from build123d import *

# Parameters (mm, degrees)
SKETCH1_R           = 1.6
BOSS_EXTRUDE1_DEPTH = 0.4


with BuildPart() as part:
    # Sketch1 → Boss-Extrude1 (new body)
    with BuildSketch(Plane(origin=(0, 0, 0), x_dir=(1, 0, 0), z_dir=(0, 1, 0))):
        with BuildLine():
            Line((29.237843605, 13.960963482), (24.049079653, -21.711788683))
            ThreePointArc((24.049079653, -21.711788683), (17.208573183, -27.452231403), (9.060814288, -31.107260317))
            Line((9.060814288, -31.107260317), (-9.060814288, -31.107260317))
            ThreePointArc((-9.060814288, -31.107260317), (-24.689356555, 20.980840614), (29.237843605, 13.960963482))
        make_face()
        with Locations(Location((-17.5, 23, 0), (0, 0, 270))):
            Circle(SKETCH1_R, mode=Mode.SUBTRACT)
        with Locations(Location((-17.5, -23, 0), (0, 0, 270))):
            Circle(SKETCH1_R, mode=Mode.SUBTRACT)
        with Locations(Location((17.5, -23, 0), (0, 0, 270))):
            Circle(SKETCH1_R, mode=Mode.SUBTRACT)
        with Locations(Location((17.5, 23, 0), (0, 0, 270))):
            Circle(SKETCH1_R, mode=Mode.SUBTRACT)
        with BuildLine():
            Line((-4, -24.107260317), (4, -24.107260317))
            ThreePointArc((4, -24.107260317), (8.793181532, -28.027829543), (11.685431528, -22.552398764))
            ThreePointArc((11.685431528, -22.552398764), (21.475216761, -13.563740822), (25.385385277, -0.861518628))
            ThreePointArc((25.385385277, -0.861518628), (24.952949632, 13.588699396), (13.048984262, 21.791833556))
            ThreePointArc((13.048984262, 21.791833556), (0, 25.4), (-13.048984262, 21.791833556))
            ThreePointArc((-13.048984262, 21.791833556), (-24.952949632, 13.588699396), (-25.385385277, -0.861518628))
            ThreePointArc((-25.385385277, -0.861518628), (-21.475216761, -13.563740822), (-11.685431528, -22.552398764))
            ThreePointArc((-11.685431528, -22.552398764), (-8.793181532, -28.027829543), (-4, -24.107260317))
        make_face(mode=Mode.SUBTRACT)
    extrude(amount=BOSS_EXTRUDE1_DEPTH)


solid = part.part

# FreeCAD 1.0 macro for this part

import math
import FreeCAD as App
import Part
import Sketcher
Q = App.Units.Quantity

doc = App.newDocument("Part")
params = doc.addObject("Spreadsheet::Sheet", "Params")
for row, (alias, value) in enumerate([
    ("sketch1_radius", "4 mm"),
    ("sketch1_radius2", "16 mm"),
    ("sketch1_diameter", "3.2 mm"),
    ("sketch1_radius3", "32.4 mm"),
    ("sketch1_radius4", "25.4 mm"),
    ("pad1_length", "0.4 mm"),
], start=1):
    params.set(f"A{row}", alias)
    params.set(f"B{row}", "=" + value)
    params.setAlias(f"B{row}", alias)

body = doc.addObject("PartDesign::Body", "Body")

# Sketch on XZ plane
sketch1 = body.newObject("Sketcher::SketchObject", "Sketch")
sketch1.AttachmentSupport = (doc.getObject("XZ_Plane"), [""])
sketch1.MapMode = "FlatFace"
sketch1.addGeometry(Part.LineSegment(App.Vector(24, 21.7, 0), App.Vector(29.2, -14, 0)), False)
sketch1.addGeometry(Part.ArcOfCircle(Part.Circle(App.Vector(0, 0, 0), App.Vector(0, 0, 1), 32.4), math.radians(106), math.radians(334)), False)
sketch1.addGeometry(Part.LineSegment(App.Vector(-9.1, 31.1, 0), App.Vector(9.1, 31.1, 0)), False)
sketch1.addGeometry(Part.ArcOfCircle(Part.Circle(App.Vector(0, 0, 0), App.Vector(0, 0, 1), 32.4), math.radians(42), math.radians(74)), False)
sketch1.addGeometry(Part.Circle(App.Vector(17.5, 23, 0), App.Vector(0, 0, 1), 1.6), False)
sketch1.addGeometry(Part.Circle(App.Vector(-17.5, 23, 0), App.Vector(0, 0, 1), 1.6), False)
sketch1.addGeometry(Part.Circle(App.Vector(17.5, -23, 0), App.Vector(0, 0, 1), 1.6), False)
sketch1.addGeometry(Part.ArcOfCircle(Part.Circle(App.Vector(-8, 24.1, 0), App.Vector(0, 0, 1), 4), math.radians(0), math.radians(203)), False)
sketch1.addGeometry(Part.ArcOfCircle(Part.Circle(App.Vector(0, 0, 0), App.Vector(0, 0, 1), 25.4), math.radians(117), math.radians(178)), False)
sketch1.addGeometry(Part.ArcOfCircle(Part.Circle(App.Vector(-10.9, -5.9, 0), App.Vector(0, 0, 1), 16), math.radians(155), math.radians(262)), False)
sketch1.addGeometry(Part.ArcOfCircle(Part.Circle(App.Vector(0, 0, 0), App.Vector(0, 0, 1), 25.4), math.radians(-121), math.radians(-59)), False)
sketch1.addGeometry(Part.ArcOfCircle(Part.Circle(App.Vector(10.9, -5.9, 0), App.Vector(0, 0, 1), 16), math.radians(-82), math.radians(25)), False)
sketch1.addGeometry(Part.ArcOfCircle(Part.Circle(App.Vector(0, 0, 0), App.Vector(0, 0, 1), 25.4), math.radians(2), math.radians(63)), False)
sketch1.addGeometry(Part.ArcOfCircle(Part.Circle(App.Vector(8, 24.1, 0), App.Vector(0, 0, 1), 4), math.radians(-23), math.radians(180)), False)
sketch1.addGeometry(Part.LineSegment(App.Vector(4, 24.1, 0), App.Vector(-4, 24.1, 0)), False)
sketch1.addGeometry(Part.Circle(App.Vector(-17.5, -23, 0), App.Vector(0, 0, 1), 1.6), False)
sketch1.addConstraint(Sketcher.Constraint("Coincident", 0, 2, 1, 2))
sketch1.addConstraint(Sketcher.Constraint("Coincident", 1, 1, 2, 1))
sketch1.addConstraint(Sketcher.Constraint("Coincident", 2, 2, 3, 2))
sketch1.addConstraint(Sketcher.Constraint("Coincident", 3, 1, 0, 1))
sketch1.addConstraint(Sketcher.Constraint("Coincident", 7, 2, 8, 1))
sketch1.addConstraint(Sketcher.Constraint("Coincident", 8, 2, 9, 1))
sketch1.addConstraint(Sketcher.Constraint("Coincident", 9, 2, 10, 1))
sketch1.addConstraint(Sketcher.Constraint("Coincident", 10, 2, 11, 1))
sketch1.addConstraint(Sketcher.Constraint("Coincident", 11, 2, 12, 1))
sketch1.addConstraint(Sketcher.Constraint("Coincident", 12, 2, 13, 1))
sketch1.addConstraint(Sketcher.Constraint("Coincident", 13, 2, 14, 1))
sketch1.addConstraint(Sketcher.Constraint("Coincident", 14, 2, 7, 1))
sketch1.addConstraint(Sketcher.Constraint("Horizontal", 2))
sketch1.addConstraint(Sketcher.Constraint("Horizontal", 14))
sketch1.addConstraint(Sketcher.Constraint("Coincident", 1, 3, -1, 1))
sketch1.addConstraint(Sketcher.Constraint("Coincident", 3, 3, -1, 1))
sketch1.addConstraint(Sketcher.Constraint("Coincident", 8, 3, -1, 1))
sketch1.addConstraint(Sketcher.Constraint("Coincident", 10, 3, -1, 1))
sketch1.addConstraint(Sketcher.Constraint("Coincident", 12, 3, -1, 1))
sketch1.addConstraint(Sketcher.Constraint("Equal", 1, 3))
sketch1.addConstraint(Sketcher.Constraint("Equal", 4, 5))
sketch1.addConstraint(Sketcher.Constraint("Equal", 5, 6))
sketch1.addConstraint(Sketcher.Constraint("Equal", 8, 10))
sketch1.addConstraint(Sketcher.Constraint("Equal", 9, 11))
sketch1.addConstraint(Sketcher.Constraint("Equal", 10, 12))
sketch1.addConstraint(Sketcher.Constraint("Equal", 7, 13))
sketch1.addConstraint(Sketcher.Constraint("Equal", 6, 15))
sketch1.addConstraint(Sketcher.Constraint("Symmetric", 5, 3, 6, 3, -1, 1))
sketch1.addConstraint(Sketcher.Constraint("Symmetric", 4, 3, 15, 3, -1, 1))
sketch1.addConstraint(Sketcher.Constraint("Symmetric", 4, 3, 5, 3, -2))
sketch1.addConstraint(Sketcher.Constraint("Symmetric", 9, 3, 11, 3, -2))
sketch1.addConstraint(Sketcher.Constraint("Symmetric", 7, 3, 13, 3, -2))
sketch1.addConstraint(Sketcher.Constraint("Horizontal", 7, 3, 13, 2))
sketch1.addConstraint(Sketcher.Constraint("Radius", 7, Q("4 mm")))
sketch1.addConstraint(Sketcher.Constraint("Radius", 9, Q("16 mm")))
sketch1.addConstraint(Sketcher.Constraint("Diameter", 4, Q("3.2 mm")))
sketch1.addConstraint(Sketcher.Constraint("Radius", 1, Q("32.4 mm")))
sketch1.addConstraint(Sketcher.Constraint("Radius", 8, Q("25.4 mm")))
sketch1.addConstraint(Sketcher.Constraint("DistanceX", 14, 2, 14, 1, Q("8 mm")))
sketch1.addConstraint(Sketcher.Constraint("DistanceY", -1, 1, 4, 3, Q("23 mm")))
sketch1.addConstraint(Sketcher.Constraint("DistanceX", 5, 3, 4, 3, Q("35 mm")))
sketch1.addConstraint(Sketcher.Constraint("DistanceY", 7, 3, 1, 1, Q("7 mm")))
sketch1.addConstraint(Sketcher.Constraint("DistanceX", 2, 1, 2, 2, Q("18.121629 mm")))
sketch1.addConstraint(Sketcher.Constraint("Distance", 0, Q("36.048142 mm")))
sketch1.addConstraint(Sketcher.Constraint("DistanceX", -1, 1, 3, 1, Q("24.04908 mm")))
sketch1.addConstraint(Sketcher.Constraint("DistanceY", -1, 1, 8, 2, Q("0.861519 mm")))
sketch1.addConstraint(Sketcher.Constraint("DistanceY", 0, 2, 11, 3, Q("8.024348 mm")))
sketch1.setExpression("Constraints[33]", "Params.sketch1_radius")
sketch1.setExpression("Constraints[34]", "Params.sketch1_radius2")
sketch1.setExpression("Constraints[35]", "Params.sketch1_diameter")
sketch1.setExpression("Constraints[36]", "Params.sketch1_radius3")
sketch1.setExpression("Constraints[37]", "Params.sketch1_radius4")
pad1 = body.newObject("PartDesign::Pad", "Pad")
pad1.Profile = sketch1
pad1.setExpression("Length", "Params.pad1_length")
pad1.Reversed = True

doc.recompute()
